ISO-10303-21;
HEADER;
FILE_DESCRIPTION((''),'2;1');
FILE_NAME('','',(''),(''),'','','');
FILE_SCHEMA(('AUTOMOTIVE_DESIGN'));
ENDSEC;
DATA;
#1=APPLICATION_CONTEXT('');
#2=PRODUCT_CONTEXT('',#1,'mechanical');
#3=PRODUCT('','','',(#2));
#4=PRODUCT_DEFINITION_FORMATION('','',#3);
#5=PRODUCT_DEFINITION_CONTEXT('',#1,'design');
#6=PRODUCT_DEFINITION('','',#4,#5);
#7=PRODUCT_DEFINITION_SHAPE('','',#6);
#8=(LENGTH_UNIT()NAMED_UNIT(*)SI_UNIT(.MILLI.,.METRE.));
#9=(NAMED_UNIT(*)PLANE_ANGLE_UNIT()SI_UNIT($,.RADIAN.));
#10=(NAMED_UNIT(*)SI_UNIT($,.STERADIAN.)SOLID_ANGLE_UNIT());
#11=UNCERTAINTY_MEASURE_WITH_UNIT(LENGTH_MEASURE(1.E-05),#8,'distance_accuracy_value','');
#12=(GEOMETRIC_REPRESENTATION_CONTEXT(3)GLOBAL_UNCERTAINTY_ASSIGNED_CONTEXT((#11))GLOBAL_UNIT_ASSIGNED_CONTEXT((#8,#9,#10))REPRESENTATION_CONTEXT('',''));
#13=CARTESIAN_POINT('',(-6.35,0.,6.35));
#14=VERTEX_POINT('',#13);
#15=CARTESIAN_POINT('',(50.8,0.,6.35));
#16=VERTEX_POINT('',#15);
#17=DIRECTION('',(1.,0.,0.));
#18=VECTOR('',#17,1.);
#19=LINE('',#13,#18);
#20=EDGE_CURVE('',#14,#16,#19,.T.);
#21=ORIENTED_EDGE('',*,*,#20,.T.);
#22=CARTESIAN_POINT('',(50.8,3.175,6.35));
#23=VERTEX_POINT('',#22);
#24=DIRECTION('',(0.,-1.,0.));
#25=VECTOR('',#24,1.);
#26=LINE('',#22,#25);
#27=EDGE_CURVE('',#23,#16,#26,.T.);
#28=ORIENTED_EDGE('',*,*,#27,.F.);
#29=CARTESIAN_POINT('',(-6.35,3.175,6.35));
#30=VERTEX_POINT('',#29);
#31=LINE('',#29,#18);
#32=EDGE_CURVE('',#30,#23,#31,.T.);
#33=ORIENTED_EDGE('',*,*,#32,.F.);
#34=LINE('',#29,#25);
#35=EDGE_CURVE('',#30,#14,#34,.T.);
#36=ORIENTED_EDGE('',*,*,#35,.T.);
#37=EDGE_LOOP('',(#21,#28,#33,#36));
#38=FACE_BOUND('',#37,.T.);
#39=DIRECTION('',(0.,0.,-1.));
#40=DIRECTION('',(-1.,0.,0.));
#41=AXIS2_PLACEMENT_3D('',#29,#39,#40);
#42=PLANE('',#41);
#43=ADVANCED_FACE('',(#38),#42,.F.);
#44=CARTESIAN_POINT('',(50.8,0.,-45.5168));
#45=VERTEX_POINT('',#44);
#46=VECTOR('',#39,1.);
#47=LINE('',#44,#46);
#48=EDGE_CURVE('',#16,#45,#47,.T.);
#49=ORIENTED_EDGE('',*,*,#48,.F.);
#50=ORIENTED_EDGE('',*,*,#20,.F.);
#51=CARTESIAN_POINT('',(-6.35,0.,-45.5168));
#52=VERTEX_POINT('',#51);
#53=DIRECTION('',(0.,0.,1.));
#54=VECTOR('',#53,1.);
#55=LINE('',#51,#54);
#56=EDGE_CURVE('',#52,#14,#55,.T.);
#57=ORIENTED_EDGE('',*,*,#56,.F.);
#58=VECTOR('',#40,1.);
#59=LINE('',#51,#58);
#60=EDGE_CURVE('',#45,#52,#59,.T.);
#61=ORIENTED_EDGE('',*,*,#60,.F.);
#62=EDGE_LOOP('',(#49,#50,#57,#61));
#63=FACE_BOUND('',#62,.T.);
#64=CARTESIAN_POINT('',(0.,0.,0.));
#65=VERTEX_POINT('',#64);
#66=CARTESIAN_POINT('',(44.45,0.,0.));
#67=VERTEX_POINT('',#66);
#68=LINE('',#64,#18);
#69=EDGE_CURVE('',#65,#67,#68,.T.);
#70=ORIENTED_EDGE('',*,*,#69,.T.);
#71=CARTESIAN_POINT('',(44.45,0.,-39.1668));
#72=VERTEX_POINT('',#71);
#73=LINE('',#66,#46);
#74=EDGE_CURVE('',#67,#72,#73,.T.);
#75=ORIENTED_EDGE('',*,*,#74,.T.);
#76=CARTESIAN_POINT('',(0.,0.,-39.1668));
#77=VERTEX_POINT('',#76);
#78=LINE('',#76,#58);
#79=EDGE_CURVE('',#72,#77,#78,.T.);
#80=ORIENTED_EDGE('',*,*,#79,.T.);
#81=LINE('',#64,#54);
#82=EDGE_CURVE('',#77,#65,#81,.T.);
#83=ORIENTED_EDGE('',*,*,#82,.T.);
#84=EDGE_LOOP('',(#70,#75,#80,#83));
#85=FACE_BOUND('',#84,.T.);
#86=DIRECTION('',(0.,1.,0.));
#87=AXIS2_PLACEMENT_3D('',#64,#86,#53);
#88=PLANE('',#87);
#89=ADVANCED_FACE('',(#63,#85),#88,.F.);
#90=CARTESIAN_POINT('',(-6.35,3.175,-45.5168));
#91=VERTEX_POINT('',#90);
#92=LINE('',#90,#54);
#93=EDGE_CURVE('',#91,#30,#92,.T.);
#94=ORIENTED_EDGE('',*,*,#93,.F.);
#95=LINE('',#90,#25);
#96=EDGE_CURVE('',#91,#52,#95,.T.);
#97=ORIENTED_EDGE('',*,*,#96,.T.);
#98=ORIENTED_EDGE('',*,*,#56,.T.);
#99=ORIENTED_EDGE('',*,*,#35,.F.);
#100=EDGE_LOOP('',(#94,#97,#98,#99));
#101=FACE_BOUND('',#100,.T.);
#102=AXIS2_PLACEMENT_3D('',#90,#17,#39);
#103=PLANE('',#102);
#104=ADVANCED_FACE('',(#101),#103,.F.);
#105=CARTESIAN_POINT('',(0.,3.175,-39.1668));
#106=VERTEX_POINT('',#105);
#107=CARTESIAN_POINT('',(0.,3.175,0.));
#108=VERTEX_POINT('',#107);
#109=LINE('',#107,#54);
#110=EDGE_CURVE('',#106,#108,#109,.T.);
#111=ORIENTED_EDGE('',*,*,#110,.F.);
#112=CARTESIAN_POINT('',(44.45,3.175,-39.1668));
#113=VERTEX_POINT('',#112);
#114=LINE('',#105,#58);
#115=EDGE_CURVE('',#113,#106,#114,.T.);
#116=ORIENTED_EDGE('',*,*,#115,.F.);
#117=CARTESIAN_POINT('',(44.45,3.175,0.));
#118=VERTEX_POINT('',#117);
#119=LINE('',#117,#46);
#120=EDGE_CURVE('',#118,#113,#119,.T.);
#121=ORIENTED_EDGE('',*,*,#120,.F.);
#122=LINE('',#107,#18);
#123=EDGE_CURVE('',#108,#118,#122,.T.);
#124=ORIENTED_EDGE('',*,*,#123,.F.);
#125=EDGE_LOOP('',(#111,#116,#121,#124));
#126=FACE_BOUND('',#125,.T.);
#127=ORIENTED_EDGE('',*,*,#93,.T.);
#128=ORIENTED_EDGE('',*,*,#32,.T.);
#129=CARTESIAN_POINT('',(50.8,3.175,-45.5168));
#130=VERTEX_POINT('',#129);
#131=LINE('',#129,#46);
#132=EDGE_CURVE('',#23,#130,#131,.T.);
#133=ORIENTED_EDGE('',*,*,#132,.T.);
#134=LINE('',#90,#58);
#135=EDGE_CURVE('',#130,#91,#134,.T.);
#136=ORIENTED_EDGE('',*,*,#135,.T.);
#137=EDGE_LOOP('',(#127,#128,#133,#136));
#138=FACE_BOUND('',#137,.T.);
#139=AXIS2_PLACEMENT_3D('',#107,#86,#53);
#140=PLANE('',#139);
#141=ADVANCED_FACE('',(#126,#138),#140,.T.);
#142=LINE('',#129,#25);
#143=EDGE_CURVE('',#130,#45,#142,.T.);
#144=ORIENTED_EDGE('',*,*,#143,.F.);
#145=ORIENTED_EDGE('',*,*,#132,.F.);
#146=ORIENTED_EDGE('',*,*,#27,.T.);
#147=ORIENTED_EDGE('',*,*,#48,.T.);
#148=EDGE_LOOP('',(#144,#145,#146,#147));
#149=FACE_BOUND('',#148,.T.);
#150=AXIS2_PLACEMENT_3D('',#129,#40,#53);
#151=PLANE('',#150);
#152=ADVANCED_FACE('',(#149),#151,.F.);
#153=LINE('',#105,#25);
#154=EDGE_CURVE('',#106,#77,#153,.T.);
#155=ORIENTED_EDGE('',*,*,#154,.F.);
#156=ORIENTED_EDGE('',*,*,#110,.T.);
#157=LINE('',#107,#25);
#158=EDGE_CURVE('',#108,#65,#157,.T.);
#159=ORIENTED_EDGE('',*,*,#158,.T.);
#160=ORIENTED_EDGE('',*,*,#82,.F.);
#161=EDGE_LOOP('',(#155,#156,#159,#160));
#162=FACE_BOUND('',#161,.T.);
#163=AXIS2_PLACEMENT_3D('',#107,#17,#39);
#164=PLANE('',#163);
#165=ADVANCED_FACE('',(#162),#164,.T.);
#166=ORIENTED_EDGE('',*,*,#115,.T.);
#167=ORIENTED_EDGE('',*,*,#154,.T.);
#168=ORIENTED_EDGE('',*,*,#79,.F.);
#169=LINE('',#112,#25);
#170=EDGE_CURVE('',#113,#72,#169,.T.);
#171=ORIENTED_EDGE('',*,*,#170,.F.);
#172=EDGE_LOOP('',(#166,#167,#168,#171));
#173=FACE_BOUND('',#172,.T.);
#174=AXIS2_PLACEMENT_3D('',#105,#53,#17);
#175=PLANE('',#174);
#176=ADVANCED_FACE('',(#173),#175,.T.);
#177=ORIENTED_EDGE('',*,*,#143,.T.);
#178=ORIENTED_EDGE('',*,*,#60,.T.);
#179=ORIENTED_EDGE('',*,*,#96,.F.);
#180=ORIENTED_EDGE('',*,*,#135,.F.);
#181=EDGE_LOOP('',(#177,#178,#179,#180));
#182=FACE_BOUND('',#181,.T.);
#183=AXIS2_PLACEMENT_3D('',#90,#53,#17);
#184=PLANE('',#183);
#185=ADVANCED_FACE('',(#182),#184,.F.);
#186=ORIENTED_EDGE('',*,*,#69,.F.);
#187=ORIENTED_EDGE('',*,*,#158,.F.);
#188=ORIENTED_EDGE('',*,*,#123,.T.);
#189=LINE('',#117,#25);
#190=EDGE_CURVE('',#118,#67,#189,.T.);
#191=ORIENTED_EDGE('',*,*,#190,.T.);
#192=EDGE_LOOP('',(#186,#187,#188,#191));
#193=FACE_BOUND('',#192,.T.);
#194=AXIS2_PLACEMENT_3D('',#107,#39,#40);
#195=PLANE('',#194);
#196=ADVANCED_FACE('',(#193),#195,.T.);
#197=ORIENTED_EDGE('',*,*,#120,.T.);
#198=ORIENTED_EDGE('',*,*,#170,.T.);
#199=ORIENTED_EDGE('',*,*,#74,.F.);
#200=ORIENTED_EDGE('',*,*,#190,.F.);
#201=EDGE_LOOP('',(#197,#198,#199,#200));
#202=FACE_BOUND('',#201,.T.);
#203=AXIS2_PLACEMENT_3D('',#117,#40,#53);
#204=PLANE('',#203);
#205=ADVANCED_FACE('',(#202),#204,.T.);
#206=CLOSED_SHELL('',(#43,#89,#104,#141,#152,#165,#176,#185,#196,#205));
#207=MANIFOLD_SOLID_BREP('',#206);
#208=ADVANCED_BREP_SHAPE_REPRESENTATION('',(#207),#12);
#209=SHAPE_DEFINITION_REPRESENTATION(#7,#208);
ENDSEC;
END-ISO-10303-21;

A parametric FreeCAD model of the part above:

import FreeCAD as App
import Part
import Sketcher
Q = App.Units.Quantity


def add_polygon(sketch, points):
    """Adds a closed chain of lines whose ends are joined by coincident constraints."""
    first, n = sketch.GeometryCount, len(points)
    for a, b in zip(points, points[1:] + points[:1]):
        sketch.addGeometry(Part.LineSegment(App.Vector(*a, 0), App.Vector(*b, 0)), False)
    for i in range(n):
        sketch.addConstraint(Sketcher.Constraint("Coincident", first + i, 2, first + (i + 1) % n, 1))

doc = App.newDocument("Part")
body = doc.addObject("PartDesign::Body", "Body")

# Sketch on XZ plane
sketch1 = doc.addObject("Sketcher::SketchObject", "Sketch")
body.addObject(sketch1)
sketch1.AttachmentSupport = (doc.XZ_Plane, [""])
sketch1.MapMode = "FlatFace"
add_polygon(sketch1, [(-6.35, -45.5168), (-6.35, 6.35), (50.8, 6.35), (50.8, -45.5168)])  # lines 0-3
add_polygon(sketch1, [(44.45, 0), (0, 0), (0, -39.1668), (44.45, -39.1668)])  # lines 4-7
sketch1.addConstraint(Sketcher.Constraint("Vertical", 0))
sketch1.addConstraint(Sketcher.Constraint("Horizontal", 1))
sketch1.addConstraint(Sketcher.Constraint("Vertical", 2))
sketch1.addConstraint(Sketcher.Constraint("Horizontal", 3))
sketch1.addConstraint(Sketcher.Constraint("Horizontal", 4))
sketch1.addConstraint(Sketcher.Constraint("Vertical", 5))
sketch1.addConstraint(Sketcher.Constraint("Horizontal", 6))
sketch1.addConstraint(Sketcher.Constraint("Vertical", 7))
sketch1.addConstraint(Sketcher.Constraint("Coincident", 4, 2, -1, 1))
sketch1.addConstraint(Sketcher.Constraint("DistanceX", -1, 1, 1, 2, Q("2 in")))
sketch1.addConstraint(Sketcher.Constraint("DistanceX", 3, 2, 6, 2, Q("2 in")))
sketch1.addConstraint(Sketcher.Constraint("DistanceX", 1, 1, 1, 2, Q("2.25 in")))
sketch1.addConstraint(Sketcher.Constraint("DistanceY", 0, 1, 0, 2, Q("2.042 in")))
sketch1.addConstraint(Sketcher.Constraint("DistanceY", 5, 2, 5, 1, Q("1.542 in")))
sketch1.addConstraint(Sketcher.Constraint("DistanceY", -1, 1, 0, 2, Q("0.25 in")))
pad1 = doc.addObject("PartDesign::Pad", "Pad")
body.addObject(pad1)
pad1.Profile = sketch1
pad1.Length = Q("0.125 in")
pad1.Reversed = True

doc.recompute()
